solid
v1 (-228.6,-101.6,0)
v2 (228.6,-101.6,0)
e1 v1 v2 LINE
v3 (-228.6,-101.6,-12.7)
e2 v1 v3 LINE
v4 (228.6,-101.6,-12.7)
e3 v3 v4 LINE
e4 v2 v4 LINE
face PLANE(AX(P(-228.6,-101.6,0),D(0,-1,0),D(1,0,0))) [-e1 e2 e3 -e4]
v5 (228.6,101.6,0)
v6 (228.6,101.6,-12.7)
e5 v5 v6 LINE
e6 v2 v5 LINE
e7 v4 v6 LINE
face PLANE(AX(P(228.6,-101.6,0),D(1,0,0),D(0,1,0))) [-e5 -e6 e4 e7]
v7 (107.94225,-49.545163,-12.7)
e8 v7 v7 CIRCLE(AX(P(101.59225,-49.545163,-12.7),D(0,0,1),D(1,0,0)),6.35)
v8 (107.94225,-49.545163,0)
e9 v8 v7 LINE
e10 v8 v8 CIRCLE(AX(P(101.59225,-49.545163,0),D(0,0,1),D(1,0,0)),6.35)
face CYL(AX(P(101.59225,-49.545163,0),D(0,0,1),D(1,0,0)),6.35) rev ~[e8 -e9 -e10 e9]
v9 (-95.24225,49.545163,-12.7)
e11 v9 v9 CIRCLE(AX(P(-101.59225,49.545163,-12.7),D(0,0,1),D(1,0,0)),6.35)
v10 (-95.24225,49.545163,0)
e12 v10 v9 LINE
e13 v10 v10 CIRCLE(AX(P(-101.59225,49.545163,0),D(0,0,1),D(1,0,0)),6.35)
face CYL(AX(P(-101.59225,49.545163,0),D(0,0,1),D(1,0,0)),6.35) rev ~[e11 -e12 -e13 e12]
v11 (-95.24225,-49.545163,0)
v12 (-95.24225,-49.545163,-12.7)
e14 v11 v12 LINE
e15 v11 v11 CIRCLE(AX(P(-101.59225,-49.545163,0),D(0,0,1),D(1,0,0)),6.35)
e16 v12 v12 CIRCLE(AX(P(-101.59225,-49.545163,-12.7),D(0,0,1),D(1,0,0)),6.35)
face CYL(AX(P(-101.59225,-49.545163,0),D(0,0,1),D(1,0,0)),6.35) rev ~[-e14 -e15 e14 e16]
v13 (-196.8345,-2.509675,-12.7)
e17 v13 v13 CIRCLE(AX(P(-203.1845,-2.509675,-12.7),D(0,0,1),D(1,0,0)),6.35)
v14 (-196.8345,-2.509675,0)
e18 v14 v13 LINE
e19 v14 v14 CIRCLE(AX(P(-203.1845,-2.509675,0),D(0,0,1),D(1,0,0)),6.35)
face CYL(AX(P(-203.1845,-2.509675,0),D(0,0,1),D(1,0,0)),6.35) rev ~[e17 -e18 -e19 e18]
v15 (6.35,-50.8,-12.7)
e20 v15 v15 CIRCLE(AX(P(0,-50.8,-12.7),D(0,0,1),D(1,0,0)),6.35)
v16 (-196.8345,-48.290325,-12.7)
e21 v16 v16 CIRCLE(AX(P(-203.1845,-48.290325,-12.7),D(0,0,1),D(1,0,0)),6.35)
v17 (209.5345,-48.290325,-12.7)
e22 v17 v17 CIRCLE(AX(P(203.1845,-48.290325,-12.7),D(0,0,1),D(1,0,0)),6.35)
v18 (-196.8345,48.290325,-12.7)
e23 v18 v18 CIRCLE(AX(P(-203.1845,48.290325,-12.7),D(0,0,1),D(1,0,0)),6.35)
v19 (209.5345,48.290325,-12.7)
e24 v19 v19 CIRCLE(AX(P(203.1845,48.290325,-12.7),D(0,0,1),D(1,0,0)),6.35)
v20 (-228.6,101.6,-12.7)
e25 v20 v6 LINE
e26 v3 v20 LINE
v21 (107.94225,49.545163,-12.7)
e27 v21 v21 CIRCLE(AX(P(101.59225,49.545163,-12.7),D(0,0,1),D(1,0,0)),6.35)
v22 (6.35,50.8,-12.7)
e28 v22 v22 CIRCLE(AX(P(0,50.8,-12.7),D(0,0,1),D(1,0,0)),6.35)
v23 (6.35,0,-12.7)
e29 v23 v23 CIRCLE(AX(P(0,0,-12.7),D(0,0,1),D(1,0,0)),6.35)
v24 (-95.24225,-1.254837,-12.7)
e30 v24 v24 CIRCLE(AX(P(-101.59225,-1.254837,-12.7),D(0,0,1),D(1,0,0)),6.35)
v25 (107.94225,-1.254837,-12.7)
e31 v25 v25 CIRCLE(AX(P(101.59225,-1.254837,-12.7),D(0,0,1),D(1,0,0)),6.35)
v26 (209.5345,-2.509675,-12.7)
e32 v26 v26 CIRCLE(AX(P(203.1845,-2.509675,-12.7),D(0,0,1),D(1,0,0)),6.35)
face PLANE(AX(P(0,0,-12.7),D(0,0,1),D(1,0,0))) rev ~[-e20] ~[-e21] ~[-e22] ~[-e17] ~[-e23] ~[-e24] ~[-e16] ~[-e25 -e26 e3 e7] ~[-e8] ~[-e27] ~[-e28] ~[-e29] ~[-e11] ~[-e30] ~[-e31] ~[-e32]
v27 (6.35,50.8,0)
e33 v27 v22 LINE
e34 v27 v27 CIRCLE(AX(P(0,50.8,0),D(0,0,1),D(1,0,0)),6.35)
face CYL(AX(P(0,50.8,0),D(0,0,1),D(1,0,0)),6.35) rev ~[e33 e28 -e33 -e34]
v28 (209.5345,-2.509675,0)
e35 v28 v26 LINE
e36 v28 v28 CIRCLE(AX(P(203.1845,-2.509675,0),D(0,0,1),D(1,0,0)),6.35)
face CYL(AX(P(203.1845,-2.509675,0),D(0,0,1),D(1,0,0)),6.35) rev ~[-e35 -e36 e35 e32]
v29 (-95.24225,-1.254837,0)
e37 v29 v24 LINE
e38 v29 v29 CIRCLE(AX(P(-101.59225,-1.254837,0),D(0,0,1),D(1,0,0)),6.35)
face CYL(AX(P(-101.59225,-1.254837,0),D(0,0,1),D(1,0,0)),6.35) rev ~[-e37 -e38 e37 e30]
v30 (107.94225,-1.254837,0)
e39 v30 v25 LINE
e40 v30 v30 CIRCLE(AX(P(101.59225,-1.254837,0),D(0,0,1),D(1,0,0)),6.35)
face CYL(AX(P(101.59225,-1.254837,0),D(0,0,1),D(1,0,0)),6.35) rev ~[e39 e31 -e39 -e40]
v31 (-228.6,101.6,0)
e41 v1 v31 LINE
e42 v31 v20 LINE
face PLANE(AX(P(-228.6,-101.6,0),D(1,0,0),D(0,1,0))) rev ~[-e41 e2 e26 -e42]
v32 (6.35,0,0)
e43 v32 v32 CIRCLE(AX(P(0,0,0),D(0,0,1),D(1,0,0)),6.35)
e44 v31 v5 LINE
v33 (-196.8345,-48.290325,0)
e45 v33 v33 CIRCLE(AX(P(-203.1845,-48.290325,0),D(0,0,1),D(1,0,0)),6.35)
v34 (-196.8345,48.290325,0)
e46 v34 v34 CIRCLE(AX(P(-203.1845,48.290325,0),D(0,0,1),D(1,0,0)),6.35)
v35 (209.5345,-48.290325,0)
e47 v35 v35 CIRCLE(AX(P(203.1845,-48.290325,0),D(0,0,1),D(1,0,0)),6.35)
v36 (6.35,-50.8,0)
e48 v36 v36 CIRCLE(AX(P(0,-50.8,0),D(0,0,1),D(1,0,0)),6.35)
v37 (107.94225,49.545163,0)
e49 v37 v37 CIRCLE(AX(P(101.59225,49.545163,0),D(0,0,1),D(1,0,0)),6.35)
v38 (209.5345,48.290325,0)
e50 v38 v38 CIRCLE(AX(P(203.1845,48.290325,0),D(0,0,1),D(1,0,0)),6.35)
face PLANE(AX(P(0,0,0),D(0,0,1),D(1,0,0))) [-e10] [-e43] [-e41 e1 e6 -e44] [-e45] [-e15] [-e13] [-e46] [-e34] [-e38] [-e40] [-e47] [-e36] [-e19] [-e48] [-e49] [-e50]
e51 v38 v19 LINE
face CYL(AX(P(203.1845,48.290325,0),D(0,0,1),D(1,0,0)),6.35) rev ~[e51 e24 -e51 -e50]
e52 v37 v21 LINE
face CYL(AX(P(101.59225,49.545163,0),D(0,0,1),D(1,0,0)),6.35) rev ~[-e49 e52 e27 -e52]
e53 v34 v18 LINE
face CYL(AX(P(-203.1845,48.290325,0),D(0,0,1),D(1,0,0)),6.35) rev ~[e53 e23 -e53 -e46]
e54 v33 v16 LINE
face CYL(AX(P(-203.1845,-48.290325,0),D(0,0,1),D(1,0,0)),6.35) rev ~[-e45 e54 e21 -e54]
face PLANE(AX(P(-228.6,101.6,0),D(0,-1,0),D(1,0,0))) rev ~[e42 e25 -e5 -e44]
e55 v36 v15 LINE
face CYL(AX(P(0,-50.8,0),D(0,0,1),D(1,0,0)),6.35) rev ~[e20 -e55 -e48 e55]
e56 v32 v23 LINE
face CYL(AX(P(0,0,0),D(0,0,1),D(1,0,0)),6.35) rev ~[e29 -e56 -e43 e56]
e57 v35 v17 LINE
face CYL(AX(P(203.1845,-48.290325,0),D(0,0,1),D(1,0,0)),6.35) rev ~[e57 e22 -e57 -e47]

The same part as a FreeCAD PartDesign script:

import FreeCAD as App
import Part
import Sketcher
from FreeCAD import Vector
Q = App.Units.Quantity


def add_polygon(sketch, points):
    """Adds a closed chain of lines whose ends are joined by coincident constraints."""
    first, n = sketch.GeometryCount, len(points)
    for a, b in zip(points, points[1:] + points[:1]):
        sketch.addGeometry(Part.LineSegment(App.Vector(*a, 0), App.Vector(*b, 0)), False)
    for i in range(n):
        sketch.addConstraint(Sketcher.Constraint("Coincident", first + i, 2, first + (i + 1) % n, 1))

doc = App.newDocument("Part")
body = doc.addObject("PartDesign::Body", "Body")

sketch1 = body.newObject("Sketcher::SketchObject", "Sketch")
sketch1.AttachmentSupport = (doc.getObject("XY_Plane"), [""])
sketch1.MapMode = "FlatFace"
add_polygon(sketch1, [(-229, 102), (-229, -102), (229, -102), (229, 102)])
sketch1.addConstraint(Sketcher.Constraint("Vertical", 0))
sketch1.addConstraint(Sketcher.Constraint("Horizontal", 1))
sketch1.addConstraint(Sketcher.Constraint("Vertical", 2))
sketch1.addConstraint(Sketcher.Constraint("Horizontal", 3))
sketch1.addConstraint(Sketcher.Constraint("Symmetric", 0, 2, 2, 2, -1, 1))
sketch1.addConstraint(Sketcher.Constraint("DistanceX", 1, 1, 1, 2, Q("18 in")))
sketch1.addConstraint(Sketcher.Constraint("DistanceY", 0, 2, 0, 1, Q("8 in")))
pad1 = body.newObject("PartDesign::Pad", "Pad")
pad1.Profile = sketch1
pad1.Length = Q("0.5 in")
pad1.Reversed = True

sketch2 = body.newObject("Sketcher::SketchObject", "Sketch001")
sketch2.AttachmentSupport = (doc.getObject("XY_Plane"), [""])
sketch2.MapMode = "FlatFace"
sketch2.addGeometry(Part.Circle(Vector(0, 0, 0), Vector(0, 0, 1), 6), False)
sketch2.addGeometry(Part.Circle(Vector(0, 51, 0), Vector(0, 0, 1), 6), False)
sketch2.addGeometry(Part.Circle(Vector(102, -1, 0), Vector(0, 0, 1), 6), False)
sketch2.addGeometry(Part.Circle(Vector(102, 50, 0), Vector(0, 0, 1), 6), False)
sketch2.addGeometry(Part.Circle(Vector(203, -3, 0), Vector(0, 0, 1), 6), False)
sketch2.addGeometry(Part.Circle(Vector(203, 48, 0), Vector(0, 0, 1), 6), False)
sketch2.addGeometry(Part.Circle(Vector(102, -50, 0), Vector(0, 0, 1), 6), False)
sketch2.addGeometry(Part.Circle(Vector(203, -48, 0), Vector(0, 0, 1), 6), False)
sketch2.addGeometry(Part.Circle(Vector(0, -51, 0), Vector(0, 0, 1), 6), False)
sketch2.addGeometry(Part.Circle(Vector(-102, -1, 0), Vector(0, 0, 1), 6), False)
sketch2.addGeometry(Part.Circle(Vector(-102, -50, 0), Vector(0, 0, 1), 6), False)
sketch2.addGeometry(Part.Circle(Vector(-203, -48, 0), Vector(0, 0, 1), 6), False)
sketch2.addGeometry(Part.Circle(Vector(-102, 50, 0), Vector(0, 0, 1), 6), False)
sketch2.addGeometry(Part.Circle(Vector(-203, -3, 0), Vector(0, 0, 1), 6), False)
sketch2.addGeometry(Part.Circle(Vector(-203, 48, 0), Vector(0, 0, 1), 6), False)
sketch2.addConstraint(Sketcher.Constraint("Coincident", 0, 3, -1, 1))
sketch2.addConstraint(Sketcher.Constraint("Equal", 0, 1))
sketch2.addConstraint(Sketcher.Constraint("Equal", 1, 2))
sketch2.addConstraint(Sketcher.Constraint("Equal", 2, 3))
sketch2.addConstraint(Sketcher.Constraint("Equal", 3, 4))
sketch2.addConstraint(Sketcher.Constraint("Equal", 4, 5))
sketch2.addConstraint(Sketcher.Constraint("Equal", 5, 6))
sketch2.addConstraint(Sketcher.Constraint("Equal", 6, 7))
sketch2.addConstraint(Sketcher.Constraint("Equal", 7, 8))
sketch2.addConstraint(Sketcher.Constraint("Equal", 8, 9))
sketch2.addConstraint(Sketcher.Constraint("Equal", 9, 10))
sketch2.addConstraint(Sketcher.Constraint("Equal", 10, 11))
sketch2.addConstraint(Sketcher.Constraint("Equal", 11, 12))
sketch2.addConstraint(Sketcher.Constraint("Equal", 12, 13))
sketch2.addConstraint(Sketcher.Constraint("Equal", 13, 14))
sketch2.addConstraint(Sketcher.Constraint("Symmetric", 1, 3, 8, 3, -1, 1))
sketch2.addConstraint(Sketcher.Constraint("Symmetric", 3, 3, 10, 3, -1, 1))
sketch2.addConstraint(Sketcher.Constraint("Symmetric", 5, 3, 11, 3, -1, 1))
sketch2.addConstraint(Sketcher.Constraint("Symmetric", 6, 3, 12, 3, -1, 1))
sketch2.addConstraint(Sketcher.Constraint("Symmetric", 7, 3, 14, 3, -1, 1))
sketch2.addConstraint(Sketcher.Constraint("Symmetric", 2, 3, 9, 3, -2))
sketch2.addConstraint(Sketcher.Constraint("Symmetric", 6, 3, 10, 3, -2))
sketch2.addConstraint(Sketcher.Constraint("Symmetric", 7, 3, 11, 3, -2))
sketch2.addConstraint(Sketcher.Constraint("Symmetric", 4, 3, 13, 3, -2))
sketch2.addConstraint(Sketcher.Constraint("PointOnObject", 1, 3, -2))
sketch2.addConstraint(Sketcher.Constraint("Vertical", 2, 3, 3, 3))
sketch2.addConstraint(Sketcher.Constraint("Vertical", 4, 3, 5, 3))
sketch2.addConstraint(Sketcher.Constraint("Diameter", 0, Q("0.5 in")))
sketch2.addConstraint(Sketcher.Constraint("DistanceY", -1, 1, 1, 3, Q("2 in")))
sketch2.addConstraint(Sketcher.Constraint("DistanceY", 2, 3, 3, 3, Q("2 in")))
sketch2.addConstraint(Sketcher.Constraint("DistanceY", 4, 3, 5, 3, Q("2 in")))
sketch2.addConstraint(Sketcher.Constraint("DistanceX", -1, 1, 4, 3, 203.1845))
sketch2.addConstraint(Sketcher.Constraint("DistanceX", 9, 3, 2, 3, 203.1845))
sketch2.addConstraint(Sketcher.Constraint("DistanceY", 4, 3, 2, 3, 1.254838))
sketch2.addConstraint(Sketcher.Constraint("DistanceY", 6, 3, 5, 3, 97.835488))
pocket1 = body.newObject("PartDesign::Pocket", "Pocket")
pocket1.Profile = sketch2
pocket1.Length = Q("1 in")

doc.recompute()
